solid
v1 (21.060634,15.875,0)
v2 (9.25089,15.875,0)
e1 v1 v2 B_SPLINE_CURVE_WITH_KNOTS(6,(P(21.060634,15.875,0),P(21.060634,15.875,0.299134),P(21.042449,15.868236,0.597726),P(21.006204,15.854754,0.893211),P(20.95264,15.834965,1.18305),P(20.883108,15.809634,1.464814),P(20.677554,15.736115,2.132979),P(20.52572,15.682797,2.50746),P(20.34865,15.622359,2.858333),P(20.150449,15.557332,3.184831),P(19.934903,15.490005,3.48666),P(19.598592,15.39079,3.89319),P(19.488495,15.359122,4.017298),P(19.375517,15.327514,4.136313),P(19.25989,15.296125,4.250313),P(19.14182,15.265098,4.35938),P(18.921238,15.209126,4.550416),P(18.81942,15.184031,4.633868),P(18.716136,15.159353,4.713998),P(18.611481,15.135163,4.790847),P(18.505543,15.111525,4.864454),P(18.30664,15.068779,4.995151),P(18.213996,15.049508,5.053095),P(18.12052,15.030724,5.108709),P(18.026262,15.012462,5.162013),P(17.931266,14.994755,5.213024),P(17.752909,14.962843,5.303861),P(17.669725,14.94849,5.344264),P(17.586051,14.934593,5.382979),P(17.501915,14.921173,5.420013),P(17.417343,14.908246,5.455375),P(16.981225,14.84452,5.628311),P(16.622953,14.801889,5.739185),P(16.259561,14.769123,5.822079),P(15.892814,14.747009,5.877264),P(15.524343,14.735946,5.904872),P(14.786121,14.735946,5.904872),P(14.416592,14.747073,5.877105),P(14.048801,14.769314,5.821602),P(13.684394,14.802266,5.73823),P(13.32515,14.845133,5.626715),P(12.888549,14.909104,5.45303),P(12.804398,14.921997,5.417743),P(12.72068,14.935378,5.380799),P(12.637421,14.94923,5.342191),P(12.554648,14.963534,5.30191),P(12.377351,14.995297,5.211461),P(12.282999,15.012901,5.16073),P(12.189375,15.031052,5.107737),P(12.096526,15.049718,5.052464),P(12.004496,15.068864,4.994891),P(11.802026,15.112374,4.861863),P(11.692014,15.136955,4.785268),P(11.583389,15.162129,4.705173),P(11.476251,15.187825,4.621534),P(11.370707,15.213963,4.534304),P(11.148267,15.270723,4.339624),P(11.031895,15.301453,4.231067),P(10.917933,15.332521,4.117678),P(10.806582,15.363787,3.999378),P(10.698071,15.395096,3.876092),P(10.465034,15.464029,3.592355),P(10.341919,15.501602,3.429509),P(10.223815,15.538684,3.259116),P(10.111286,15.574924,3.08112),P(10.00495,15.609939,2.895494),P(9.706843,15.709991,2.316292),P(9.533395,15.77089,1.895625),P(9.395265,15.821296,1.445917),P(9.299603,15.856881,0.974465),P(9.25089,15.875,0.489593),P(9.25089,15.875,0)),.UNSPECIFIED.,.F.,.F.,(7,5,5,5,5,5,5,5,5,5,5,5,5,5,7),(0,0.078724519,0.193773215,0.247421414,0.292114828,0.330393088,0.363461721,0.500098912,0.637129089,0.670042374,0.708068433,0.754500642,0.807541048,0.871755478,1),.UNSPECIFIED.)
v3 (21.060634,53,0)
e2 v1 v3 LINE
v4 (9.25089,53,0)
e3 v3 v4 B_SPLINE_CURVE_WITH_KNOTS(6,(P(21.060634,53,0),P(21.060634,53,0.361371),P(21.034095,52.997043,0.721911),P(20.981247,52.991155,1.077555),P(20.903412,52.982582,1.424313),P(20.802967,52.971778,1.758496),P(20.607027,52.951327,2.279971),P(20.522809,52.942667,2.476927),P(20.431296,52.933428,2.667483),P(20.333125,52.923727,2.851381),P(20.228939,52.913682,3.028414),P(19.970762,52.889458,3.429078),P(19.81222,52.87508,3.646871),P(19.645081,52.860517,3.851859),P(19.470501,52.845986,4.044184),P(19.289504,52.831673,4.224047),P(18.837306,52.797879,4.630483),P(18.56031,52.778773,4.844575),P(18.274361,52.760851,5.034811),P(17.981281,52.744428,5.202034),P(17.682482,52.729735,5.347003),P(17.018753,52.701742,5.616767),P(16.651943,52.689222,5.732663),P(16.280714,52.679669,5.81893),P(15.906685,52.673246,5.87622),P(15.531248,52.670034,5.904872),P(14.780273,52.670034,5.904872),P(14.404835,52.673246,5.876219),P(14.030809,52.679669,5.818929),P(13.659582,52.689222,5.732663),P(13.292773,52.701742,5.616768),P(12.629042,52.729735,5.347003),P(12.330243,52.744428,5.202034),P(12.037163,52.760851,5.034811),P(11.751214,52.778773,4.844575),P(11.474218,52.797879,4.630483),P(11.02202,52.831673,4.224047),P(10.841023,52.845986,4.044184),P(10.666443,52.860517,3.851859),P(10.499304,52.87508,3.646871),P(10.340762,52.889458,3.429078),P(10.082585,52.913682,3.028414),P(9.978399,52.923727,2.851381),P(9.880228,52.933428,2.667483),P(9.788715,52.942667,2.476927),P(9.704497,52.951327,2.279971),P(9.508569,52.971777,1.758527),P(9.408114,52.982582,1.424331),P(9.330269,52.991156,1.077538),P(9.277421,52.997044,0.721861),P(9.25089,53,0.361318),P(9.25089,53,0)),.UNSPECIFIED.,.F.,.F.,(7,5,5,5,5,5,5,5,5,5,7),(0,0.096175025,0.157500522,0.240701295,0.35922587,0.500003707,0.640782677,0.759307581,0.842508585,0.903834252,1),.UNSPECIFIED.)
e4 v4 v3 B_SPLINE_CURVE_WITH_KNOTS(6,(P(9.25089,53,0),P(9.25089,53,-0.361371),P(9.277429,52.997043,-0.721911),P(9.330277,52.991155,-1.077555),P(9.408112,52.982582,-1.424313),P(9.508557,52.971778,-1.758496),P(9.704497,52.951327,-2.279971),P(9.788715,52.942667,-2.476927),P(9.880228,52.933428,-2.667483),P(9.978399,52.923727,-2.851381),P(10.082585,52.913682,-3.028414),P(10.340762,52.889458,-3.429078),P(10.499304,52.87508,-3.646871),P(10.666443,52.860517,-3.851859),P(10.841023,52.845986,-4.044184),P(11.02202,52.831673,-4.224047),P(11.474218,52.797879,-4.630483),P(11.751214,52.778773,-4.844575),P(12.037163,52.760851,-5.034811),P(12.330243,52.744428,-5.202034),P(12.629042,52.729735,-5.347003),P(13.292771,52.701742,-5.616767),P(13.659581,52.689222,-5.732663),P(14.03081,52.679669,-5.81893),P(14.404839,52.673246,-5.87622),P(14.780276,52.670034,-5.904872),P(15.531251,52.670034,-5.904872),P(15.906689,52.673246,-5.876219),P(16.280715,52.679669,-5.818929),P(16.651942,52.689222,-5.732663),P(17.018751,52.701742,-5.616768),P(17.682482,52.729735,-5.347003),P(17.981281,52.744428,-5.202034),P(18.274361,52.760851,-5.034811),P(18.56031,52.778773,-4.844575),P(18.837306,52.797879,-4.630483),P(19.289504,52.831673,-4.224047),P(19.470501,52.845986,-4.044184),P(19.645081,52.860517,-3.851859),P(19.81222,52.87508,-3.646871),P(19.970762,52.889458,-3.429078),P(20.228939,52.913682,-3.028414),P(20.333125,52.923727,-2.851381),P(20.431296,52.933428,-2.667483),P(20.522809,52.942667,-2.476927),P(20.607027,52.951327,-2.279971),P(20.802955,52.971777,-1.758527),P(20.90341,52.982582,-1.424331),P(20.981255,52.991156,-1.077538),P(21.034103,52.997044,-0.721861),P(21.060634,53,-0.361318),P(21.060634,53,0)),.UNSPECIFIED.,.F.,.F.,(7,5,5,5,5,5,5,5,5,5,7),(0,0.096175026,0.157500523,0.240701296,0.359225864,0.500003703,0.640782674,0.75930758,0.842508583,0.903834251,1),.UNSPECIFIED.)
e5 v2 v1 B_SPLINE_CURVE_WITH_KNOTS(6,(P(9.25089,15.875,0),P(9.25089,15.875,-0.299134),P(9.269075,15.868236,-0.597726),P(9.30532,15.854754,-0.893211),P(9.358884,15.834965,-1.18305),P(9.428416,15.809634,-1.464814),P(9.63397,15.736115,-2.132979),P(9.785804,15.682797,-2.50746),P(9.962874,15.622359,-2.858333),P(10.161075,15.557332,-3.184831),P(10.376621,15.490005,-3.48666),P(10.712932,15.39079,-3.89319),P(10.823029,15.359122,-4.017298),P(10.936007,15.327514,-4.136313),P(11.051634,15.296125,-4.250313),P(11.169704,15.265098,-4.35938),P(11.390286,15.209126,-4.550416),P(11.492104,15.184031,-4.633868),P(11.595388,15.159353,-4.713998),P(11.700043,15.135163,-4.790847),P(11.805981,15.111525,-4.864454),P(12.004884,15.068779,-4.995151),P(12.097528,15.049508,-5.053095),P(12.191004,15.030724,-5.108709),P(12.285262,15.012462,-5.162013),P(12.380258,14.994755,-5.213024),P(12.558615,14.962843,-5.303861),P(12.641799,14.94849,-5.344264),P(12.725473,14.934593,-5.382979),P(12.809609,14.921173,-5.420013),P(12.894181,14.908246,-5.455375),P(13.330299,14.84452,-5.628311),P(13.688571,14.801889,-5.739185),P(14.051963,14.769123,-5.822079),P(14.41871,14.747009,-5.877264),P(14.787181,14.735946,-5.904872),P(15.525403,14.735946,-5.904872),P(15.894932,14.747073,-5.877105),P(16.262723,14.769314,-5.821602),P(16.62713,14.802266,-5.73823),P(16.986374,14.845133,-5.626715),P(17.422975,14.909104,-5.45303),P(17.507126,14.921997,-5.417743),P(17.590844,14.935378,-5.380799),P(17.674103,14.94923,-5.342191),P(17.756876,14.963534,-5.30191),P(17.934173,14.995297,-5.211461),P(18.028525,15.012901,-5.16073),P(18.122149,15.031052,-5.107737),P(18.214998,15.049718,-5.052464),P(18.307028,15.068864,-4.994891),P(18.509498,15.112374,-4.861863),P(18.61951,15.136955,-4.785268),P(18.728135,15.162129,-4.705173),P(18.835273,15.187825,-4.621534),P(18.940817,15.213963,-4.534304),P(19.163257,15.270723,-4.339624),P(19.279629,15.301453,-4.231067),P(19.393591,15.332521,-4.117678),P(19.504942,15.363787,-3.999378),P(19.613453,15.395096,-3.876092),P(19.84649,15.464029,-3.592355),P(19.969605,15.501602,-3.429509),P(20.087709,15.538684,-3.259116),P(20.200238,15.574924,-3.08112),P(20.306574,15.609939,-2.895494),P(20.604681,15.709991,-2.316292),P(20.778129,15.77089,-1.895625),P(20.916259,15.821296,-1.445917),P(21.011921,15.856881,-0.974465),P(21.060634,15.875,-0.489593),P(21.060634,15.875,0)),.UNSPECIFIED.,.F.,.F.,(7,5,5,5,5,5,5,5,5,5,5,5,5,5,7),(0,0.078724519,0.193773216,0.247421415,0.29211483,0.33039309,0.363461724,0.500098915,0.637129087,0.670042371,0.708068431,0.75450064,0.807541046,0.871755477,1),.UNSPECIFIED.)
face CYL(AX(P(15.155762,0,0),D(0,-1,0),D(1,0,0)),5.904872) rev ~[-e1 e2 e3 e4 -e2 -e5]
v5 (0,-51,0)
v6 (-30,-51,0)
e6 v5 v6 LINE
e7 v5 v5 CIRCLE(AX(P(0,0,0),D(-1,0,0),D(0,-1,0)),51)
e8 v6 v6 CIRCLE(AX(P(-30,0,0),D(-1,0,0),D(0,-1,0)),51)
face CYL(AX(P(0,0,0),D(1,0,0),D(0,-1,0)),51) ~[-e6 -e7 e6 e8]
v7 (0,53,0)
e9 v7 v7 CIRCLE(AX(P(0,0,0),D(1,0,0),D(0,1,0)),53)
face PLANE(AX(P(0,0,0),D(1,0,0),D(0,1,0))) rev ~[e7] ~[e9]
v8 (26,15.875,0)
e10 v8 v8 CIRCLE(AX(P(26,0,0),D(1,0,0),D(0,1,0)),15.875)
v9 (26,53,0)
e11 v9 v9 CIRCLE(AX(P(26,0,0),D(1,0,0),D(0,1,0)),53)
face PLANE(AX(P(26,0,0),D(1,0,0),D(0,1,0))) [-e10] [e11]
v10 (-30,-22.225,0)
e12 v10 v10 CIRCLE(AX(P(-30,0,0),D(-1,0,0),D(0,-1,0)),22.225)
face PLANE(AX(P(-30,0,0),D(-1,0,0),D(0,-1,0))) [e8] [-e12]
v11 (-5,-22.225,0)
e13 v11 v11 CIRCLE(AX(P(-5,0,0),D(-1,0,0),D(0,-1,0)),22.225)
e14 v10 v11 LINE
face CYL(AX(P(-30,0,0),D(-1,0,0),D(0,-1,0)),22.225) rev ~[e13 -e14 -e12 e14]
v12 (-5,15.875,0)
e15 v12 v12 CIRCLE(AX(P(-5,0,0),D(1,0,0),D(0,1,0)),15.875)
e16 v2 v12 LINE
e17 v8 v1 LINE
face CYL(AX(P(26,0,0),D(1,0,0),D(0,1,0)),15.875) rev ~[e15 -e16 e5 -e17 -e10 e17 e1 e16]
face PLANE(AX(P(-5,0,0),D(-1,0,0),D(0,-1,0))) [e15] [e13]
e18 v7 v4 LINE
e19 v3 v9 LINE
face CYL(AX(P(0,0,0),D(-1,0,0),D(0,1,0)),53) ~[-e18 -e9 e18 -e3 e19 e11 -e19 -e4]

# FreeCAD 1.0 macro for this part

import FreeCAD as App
import Part
import Sketcher
from FreeCAD import Vector

doc = App.newDocument("Part")
params = doc.addObject("Spreadsheet::Sheet", "Params")
for row, (alias, value) in enumerate([
    ("sketch1_diameter", "106 mm"),
    ("pad1_length", "26 mm"),
    ("sketch2_diameter", "102 mm"),
    ("pad2_length", "30 mm"),
    ("sketch3_diameter", "44.45 mm"),
    ("pad3_length", "25 mm"),
    ("sketch4_diameter", "31.75 mm"),
    ("pocket1_length", "31 mm"),
    ("sketch5_diameter", "44.45 mm"),
    ("pocket2_length", "25 mm"),
    ("sketch6_diameter", "44.45 mm"),
    ("pocket3_length", "25 mm"),
    ("pocket4_length", "57 mm"),
], start=1):
    params.set(f"A{row}", alias)
    params.set(f"B{row}", "=" + value)
    params.setAlias(f"B{row}", alias)

body = doc.addObject("PartDesign::Body", "Body")

# Sketch on YZ plane
sketch1 = body.newObject("Sketcher::SketchObject", "Sketch")
sketch1.AttachmentSupport = (doc.getObject("YZ_Plane"), [""])
sketch1.MapMode = "FlatFace"
sketch1.addGeometry(Part.Circle(Vector(0, 0, 0), Vector(0, 0, 1), 53), False)
sketch1.addConstraint([
    Sketcher.Constraint("Coincident", 0, 3, -1, 1),
    Sketcher.Constraint("Diameter", 0, 106.0),
])
sketch1.setExpression("Constraints[1]", "Params.sketch1_diameter")
pad1 = body.newObject("PartDesign::Pad", "Pad")
pad1.Profile = sketch1
pad1.setExpression("Length", "Params.pad1_length")

# Sketch on YZ plane
sketch2 = body.newObject("Sketcher::SketchObject", "Sketch001")
sketch2.AttachmentSupport = (doc.getObject("YZ_Plane"), [""])
sketch2.MapMode = "FlatFace"
sketch2.addGeometry(Part.Circle(Vector(0, 0, 0), Vector(0, 0, 1), 51), False)
sketch2.addConstraint([
    Sketcher.Constraint("Coincident", 0, 3, -1, 1),
    Sketcher.Constraint("Diameter", 0, 102.0),
])
sketch2.setExpression("Constraints[1]", "Params.sketch2_diameter")
pad2 = body.newObject("PartDesign::Pad", "Pad001")
pad2.Profile = sketch2
pad2.setExpression("Length", "Params.pad2_length")
pad2.Reversed = True

# Sketch on YZ plane
sketch3 = body.newObject("Sketcher::SketchObject", "Sketch002")
sketch3.AttachmentSupport = (doc.getObject("YZ_Plane"), [""])
sketch3.MapMode = "FlatFace"
sketch3.AttachmentOffset = App.Placement(Vector(0, 0, -30), App.Rotation())
sketch3.addGeometry(Part.Circle(Vector(0, 0, 0), Vector(0, 0, 1), 22), False)
sketch3.addConstraint([
    Sketcher.Constraint("Coincident", 0, 3, -1, 1),
    Sketcher.Constraint("Diameter", 0, 44.45),
])
sketch3.setExpression("Constraints[1]", "Params.sketch3_diameter")
pad3 = body.newObject("PartDesign::Pad", "Pad002")
pad3.Profile = sketch3
pad3.setExpression("Length", "Params.pad3_length")
pad3.Reversed = True

# Sketch on YZ plane
sketch4 = body.newObject("Sketcher::SketchObject", "Sketch003")
sketch4.AttachmentSupport = (doc.getObject("YZ_Plane"), [""])
sketch4.MapMode = "FlatFace"
sketch4.AttachmentOffset = App.Placement(Vector(0, 0, 26), App.Rotation())
sketch4.addGeometry(Part.Circle(Vector(0, 0, 0), Vector(0, 0, 1), 16), False)
sketch4.addConstraint([
    Sketcher.Constraint("Coincident", 0, 3, -1, 1),
    Sketcher.Constraint("Diameter", 0, 31.75),
])
sketch4.setExpression("Constraints[1]", "Params.sketch4_diameter")
pocket1 = body.newObject("PartDesign::Pocket", "Pocket")
pocket1.Profile = sketch4
pocket1.setExpression("Length", "Params.pocket1_length")

# Sketch on YZ plane
sketch5 = body.newObject("Sketcher::SketchObject", "Sketch004")
sketch5.AttachmentSupport = (doc.getObject("YZ_Plane"), [""])
sketch5.MapMode = "FlatFace"
sketch5.AttachmentOffset = App.Placement(Vector(0, 0, -55), App.Rotation())
sketch5.addGeometry(Part.Circle(Vector(0, 0, 0), Vector(0, 0, 1), 22), False)
sketch5.addConstraint([
    Sketcher.Constraint("Coincident", 0, 3, -1, 1),
    Sketcher.Constraint("Diameter", 0, 44.45),
])
sketch5.setExpression("Constraints[1]", "Params.sketch5_diameter")
pocket2 = body.newObject("PartDesign::Pocket", "Pocket001")
pocket2.Profile = sketch5
pocket2.setExpression("Length", "Params.pocket2_length")
pocket2.Reversed = True

# Sketch on YZ plane
sketch6 = body.newObject("Sketcher::SketchObject", "Sketch005")
sketch6.AttachmentSupport = (doc.getObject("YZ_Plane"), [""])
sketch6.MapMode = "FlatFace"
sketch6.AttachmentOffset = App.Placement(Vector(0, 0, -30), App.Rotation())
sketch6.addGeometry(Part.Circle(Vector(0, 0, 0), Vector(0, 0, 1), 22), False)
sketch6.addConstraint([
    Sketcher.Constraint("Coincident", 0, 3, -1, 1),
    Sketcher.Constraint("Diameter", 0, 44.45),
])
sketch6.setExpression("Constraints[1]", "Params.sketch6_diameter")
pocket3 = body.newObject("PartDesign::Pocket", "Pocket002")
pocket3.Profile = sketch6
pocket3.setExpression("Length", "Params.pocket3_length")
pocket3.Reversed = True

# Sketch on XZ plane
sketch7 = body.newObject("Sketcher::SketchObject", "Sketch006")
sketch7.AttachmentSupport = (doc.getObject("XZ_Plane"), [""])
sketch7.MapMode = "FlatFace"
sketch7.addGeometry(Part.Circle(Vector(15, 0, 0), Vector(0, 0, 1), 6), False)
sketch7.addConstraint([
    Sketcher.Constraint("PointOnObject", 0, 3, -1),
    Sketcher.Constraint("Diameter", 0, 11.809744),
    Sketcher.Constraint("DistanceX", -1, 1, 0, 3, 15.155762),
])
pocket4 = body.newObject("PartDesign::Pocket", "Pocket003")
pocket4.Profile = sketch7
pocket4.setExpression("Length", "Params.pocket4_length")

doc.recompute()
